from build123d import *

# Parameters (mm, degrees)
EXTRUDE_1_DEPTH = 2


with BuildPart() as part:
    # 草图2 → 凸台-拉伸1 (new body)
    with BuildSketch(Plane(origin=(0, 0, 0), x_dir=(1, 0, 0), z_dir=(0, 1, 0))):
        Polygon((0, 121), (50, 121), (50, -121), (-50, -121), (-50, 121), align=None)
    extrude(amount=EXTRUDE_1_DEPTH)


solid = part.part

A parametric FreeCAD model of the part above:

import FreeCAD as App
import Part
import Sketcher
from FreeCAD import Vector
Q = App.Units.Quantity


def add_polygon(sketch, points):
    """Adds a closed chain of lines whose ends are joined by coincident constraints."""
    first, n = sketch.GeometryCount, len(points)
    for a, b in zip(points, points[1:] + points[:1]):
        sketch.addGeometry(Part.LineSegment(App.Vector(*a, 0), App.Vector(*b, 0)), False)
    for i in range(n):
        sketch.addConstraint(Sketcher.Constraint("Coincident", first + i, 2, first + (i + 1) % n, 1))

doc = App.newDocument("Part")
body = doc.addObject("PartDesign::Body", "Body")

sketch1 = doc.addObject("Sketcher::SketchObject", "Sketch")
body.addObject(sketch1)
sketch1.AttachmentSupport = (doc.XZ_Plane, [""])
sketch1.MapMode = "FlatFace"
add_polygon(sketch1, [(50, -121), (-50, -121), (-50, 121), (50, 121)])
sketch1.addConstraint([
    Sketcher.Constraint("Horizontal", 0),
    Sketcher.Constraint("Vertical", 1),
    Sketcher.Constraint("Horizontal", 2),
    Sketcher.Constraint("Vertical", 3),
    Sketcher.Constraint("Symmetric", 0, 2, 2, 2, -1, 1),
    Sketcher.Constraint("DistanceX", 0, 2, 0, 1, Q("100 mm")),
    Sketcher.Constraint("DistanceY", 1, 1, 1, 2, Q("242 mm")),
])
pad1 = doc.addObject("PartDesign::Pad", "Pad")
body.addObject(pad1)
pad1.Profile = sketch1
pad1.Length = 2
pad1.Reversed = True

doc.recompute()
